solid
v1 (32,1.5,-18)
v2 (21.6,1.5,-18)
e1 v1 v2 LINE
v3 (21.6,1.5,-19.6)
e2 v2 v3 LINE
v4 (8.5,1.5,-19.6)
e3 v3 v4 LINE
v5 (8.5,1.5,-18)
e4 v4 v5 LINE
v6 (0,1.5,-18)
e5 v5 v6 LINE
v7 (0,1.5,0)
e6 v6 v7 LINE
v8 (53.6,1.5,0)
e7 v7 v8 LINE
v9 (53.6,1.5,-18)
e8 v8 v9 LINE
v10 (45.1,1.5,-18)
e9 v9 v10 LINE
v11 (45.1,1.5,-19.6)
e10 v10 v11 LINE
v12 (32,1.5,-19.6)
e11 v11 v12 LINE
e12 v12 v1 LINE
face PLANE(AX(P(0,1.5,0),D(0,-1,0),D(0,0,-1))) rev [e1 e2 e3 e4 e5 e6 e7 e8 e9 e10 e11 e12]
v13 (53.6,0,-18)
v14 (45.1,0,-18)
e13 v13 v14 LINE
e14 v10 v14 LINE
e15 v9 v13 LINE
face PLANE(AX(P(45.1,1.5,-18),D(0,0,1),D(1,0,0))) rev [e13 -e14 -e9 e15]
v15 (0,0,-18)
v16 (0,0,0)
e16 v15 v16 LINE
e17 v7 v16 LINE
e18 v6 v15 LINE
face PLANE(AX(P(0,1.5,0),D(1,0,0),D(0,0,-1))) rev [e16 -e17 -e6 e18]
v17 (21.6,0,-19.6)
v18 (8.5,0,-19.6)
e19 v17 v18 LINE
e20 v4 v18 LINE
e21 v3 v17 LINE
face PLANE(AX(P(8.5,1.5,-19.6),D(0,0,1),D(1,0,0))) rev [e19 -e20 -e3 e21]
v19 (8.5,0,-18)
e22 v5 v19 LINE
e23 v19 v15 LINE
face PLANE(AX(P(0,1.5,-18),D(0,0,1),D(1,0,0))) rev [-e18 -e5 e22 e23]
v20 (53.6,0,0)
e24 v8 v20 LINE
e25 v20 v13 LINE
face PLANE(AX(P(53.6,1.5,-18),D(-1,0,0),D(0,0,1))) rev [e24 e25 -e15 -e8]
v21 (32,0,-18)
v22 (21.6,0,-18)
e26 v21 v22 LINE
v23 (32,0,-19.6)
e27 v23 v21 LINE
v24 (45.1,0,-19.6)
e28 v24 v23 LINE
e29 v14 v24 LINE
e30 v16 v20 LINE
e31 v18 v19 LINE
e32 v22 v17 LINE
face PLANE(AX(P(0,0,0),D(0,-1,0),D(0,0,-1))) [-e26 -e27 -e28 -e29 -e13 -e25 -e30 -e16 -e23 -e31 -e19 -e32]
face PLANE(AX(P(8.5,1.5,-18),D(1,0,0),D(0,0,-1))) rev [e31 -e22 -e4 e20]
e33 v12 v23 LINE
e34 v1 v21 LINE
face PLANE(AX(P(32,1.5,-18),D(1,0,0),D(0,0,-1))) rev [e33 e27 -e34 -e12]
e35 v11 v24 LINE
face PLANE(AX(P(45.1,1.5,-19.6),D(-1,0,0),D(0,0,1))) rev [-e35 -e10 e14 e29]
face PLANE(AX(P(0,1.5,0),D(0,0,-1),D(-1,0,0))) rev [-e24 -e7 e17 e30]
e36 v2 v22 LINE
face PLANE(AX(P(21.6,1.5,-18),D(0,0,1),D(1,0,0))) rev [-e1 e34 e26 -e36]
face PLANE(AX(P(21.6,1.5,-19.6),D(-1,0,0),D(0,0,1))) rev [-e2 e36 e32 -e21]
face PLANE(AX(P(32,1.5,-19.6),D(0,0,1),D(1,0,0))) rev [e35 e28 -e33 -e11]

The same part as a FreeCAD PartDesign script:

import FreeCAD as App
import Part
import Sketcher

V = App.Vector
Q = App.Units.Quantity

doc = App.newDocument("Part")
body = doc.addObject("PartDesign::Body", "Body")

# Sketch on XZ plane
sketch1 = doc.addObject("Sketcher::SketchObject", "Sketch")
body.addObject(sketch1)
sketch1.AttachmentSupport = (doc.XZ_Plane, [""])
sketch1.MapMode = "FlatFace"
sketch1.addGeometry([
    Part.LineSegment(V(8.5, -18, 0), V(0, -18, 0)),  # 0
    Part.LineSegment(V(0, -18, 0), V(0, 0, 0)),  # 1
    Part.LineSegment(V(0, 0, 0), V(53.6, 0, 0)),  # 2
    Part.LineSegment(V(53.6, 0, 0), V(53.6, -18, 0)),  # 3
    Part.LineSegment(V(53.6, -18, 0), V(45.1, -18, 0)),  # 4
    Part.LineSegment(V(45.1, -18, 0), V(45.1, -19.6, 0)),  # 5
    Part.LineSegment(V(45.1, -19.6, 0), V(32, -19.6, 0)),  # 6
    Part.LineSegment(V(32, -19.6, 0), V(32, -18, 0)),  # 7
    Part.LineSegment(V(32, -18, 0), V(21.6, -18, 0)),  # 8
    Part.LineSegment(V(21.6, -18, 0), V(21.6, -19.6, 0)),  # 9
    Part.LineSegment(V(21.6, -19.6, 0), V(8.5, -19.6, 0)),  # 10
    Part.LineSegment(V(8.5, -19.6, 0), V(8.5, -18, 0)),  # 11
], False)
sketch1.addConstraint([
    Sketcher.Constraint("Coincident", 0, 2, 1, 1),
    Sketcher.Constraint("Coincident", 1, 2, 2, 1),
    Sketcher.Constraint("Coincident", 2, 2, 3, 1),
    Sketcher.Constraint("Coincident", 3, 2, 4, 1),
    Sketcher.Constraint("Coincident", 4, 2, 5, 1),
    Sketcher.Constraint("Coincident", 5, 2, 6, 1),
    Sketcher.Constraint("Coincident", 6, 2, 7, 1),
    Sketcher.Constraint("Coincident", 7, 2, 8, 1),
    Sketcher.Constraint("Coincident", 8, 2, 9, 1),
    Sketcher.Constraint("Coincident", 9, 2, 10, 1),
    Sketcher.Constraint("Coincident", 10, 2, 11, 1),
    Sketcher.Constraint("Coincident", 11, 2, 0, 1),
    Sketcher.Constraint("Horizontal", 0),
    Sketcher.Constraint("Vertical", 1),
    Sketcher.Constraint("Horizontal", 2),
    Sketcher.Constraint("Vertical", 3),
    Sketcher.Constraint("Horizontal", 4),
    Sketcher.Constraint("Vertical", 5),
    Sketcher.Constraint("Horizontal", 6),
    Sketcher.Constraint("Vertical", 7),
    Sketcher.Constraint("Horizontal", 8),
    Sketcher.Constraint("Vertical", 9),
    Sketcher.Constraint("Horizontal", 10),
    Sketcher.Constraint("Vertical", 11),
    Sketcher.Constraint("Coincident", 1, 2, -1, 1),
    Sketcher.Constraint("Horizontal", 0, 2, 3, 2),
    Sketcher.Constraint("Horizontal", 4, 2, 7, 2),
    Sketcher.Constraint("Horizontal", 6, 2, 9, 2),
    Sketcher.Constraint("Equal", 0, 4),
    Sketcher.Constraint("Equal", 6, 10),
    Sketcher.Constraint("DistanceY", 1, 1, 1, 2, Q("18 mm")),
    Sketcher.Constraint("DistanceX", 0, 2, 0, 1, Q("8.5 mm")),
    Sketcher.Constraint("DistanceX", 2, 1, 2, 2, Q("53.6 mm")),
    Sketcher.Constraint("DistanceX", 6, 2, 6, 1, Q("13.1 mm")),
    Sketcher.Constraint("DistanceY", 5, 2, 5, 1, Q("1.6 mm")),
])
pad1 = doc.addObject("PartDesign::Pad", "Pad")
body.addObject(pad1)
pad1.Profile = sketch1
pad1.Length = 1.5
pad1.Reversed = True

doc.recompute()
